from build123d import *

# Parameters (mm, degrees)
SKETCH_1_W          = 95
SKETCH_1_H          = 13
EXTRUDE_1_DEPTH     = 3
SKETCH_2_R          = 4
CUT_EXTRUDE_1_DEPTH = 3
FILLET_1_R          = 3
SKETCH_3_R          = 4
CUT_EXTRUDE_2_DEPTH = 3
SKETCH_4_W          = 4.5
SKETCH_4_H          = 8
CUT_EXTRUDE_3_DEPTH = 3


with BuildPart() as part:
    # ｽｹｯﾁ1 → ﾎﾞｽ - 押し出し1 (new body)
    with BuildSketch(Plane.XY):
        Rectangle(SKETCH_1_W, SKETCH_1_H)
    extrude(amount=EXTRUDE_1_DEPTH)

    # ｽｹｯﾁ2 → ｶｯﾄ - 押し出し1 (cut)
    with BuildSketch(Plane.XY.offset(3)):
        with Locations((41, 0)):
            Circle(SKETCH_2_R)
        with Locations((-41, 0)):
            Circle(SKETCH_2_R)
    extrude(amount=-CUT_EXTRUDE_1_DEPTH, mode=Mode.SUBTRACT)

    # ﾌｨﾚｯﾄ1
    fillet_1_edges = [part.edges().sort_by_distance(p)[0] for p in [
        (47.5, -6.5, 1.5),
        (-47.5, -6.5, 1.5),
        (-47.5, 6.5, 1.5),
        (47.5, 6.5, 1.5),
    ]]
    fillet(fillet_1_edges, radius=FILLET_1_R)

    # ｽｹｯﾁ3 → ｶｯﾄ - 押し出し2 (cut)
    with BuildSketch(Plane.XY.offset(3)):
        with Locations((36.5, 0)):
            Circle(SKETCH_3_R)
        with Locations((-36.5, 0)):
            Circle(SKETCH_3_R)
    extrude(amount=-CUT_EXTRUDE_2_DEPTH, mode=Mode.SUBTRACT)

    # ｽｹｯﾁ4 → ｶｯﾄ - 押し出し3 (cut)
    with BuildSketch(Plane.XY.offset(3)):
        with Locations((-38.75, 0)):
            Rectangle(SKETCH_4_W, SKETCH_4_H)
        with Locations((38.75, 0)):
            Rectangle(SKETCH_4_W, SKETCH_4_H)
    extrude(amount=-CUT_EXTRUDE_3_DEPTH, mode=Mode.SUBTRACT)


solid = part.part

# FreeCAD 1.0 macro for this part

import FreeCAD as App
import Part
import Sketcher
from FreeCAD import Vector
Q = App.Units.Quantity


def edges_at(feature, points):
    """Names of the edges that pass closest to the given points."""
    edges = feature.Shape.Edges
    near = lambda p: min(range(len(edges)), key=lambda i: edges[i].distToShape(Part.Vertex(*p))[0])
    return sorted({f"Edge{near(p) + 1}" for p in points})

doc = App.newDocument("Part")
body = doc.addObject("PartDesign::Body", "Body")

sketch1 = body.newObject("Sketcher::SketchObject", "Sketch")
sketch1.AttachmentSupport = (doc.getObject("XY_Plane"), [""])
sketch1.MapMode = "FlatFace"
sketch1.addGeometry([
    Part.LineSegment(Vector(-48, 6, 0), Vector(-48, -6, 0)),
    Part.LineSegment(Vector(-48, -6, 0), Vector(48, -6, 0)),
    Part.LineSegment(Vector(48, -6, 0), Vector(48, 6, 0)),
    Part.LineSegment(Vector(48, 6, 0), Vector(-48, 6, 0)),
], False)
sketch1.addConstraint([
    Sketcher.Constraint("Coincident", 0, 2, 1, 1),
    Sketcher.Constraint("Coincident", 1, 2, 2, 1),
    Sketcher.Constraint("Coincident", 2, 2, 3, 1),
    Sketcher.Constraint("Coincident", 3, 2, 0, 1),
    Sketcher.Constraint("Vertical", 0),
    Sketcher.Constraint("Horizontal", 1),
    Sketcher.Constraint("Vertical", 2),
    Sketcher.Constraint("Horizontal", 3),
    Sketcher.Constraint("Symmetric", 0, 2, 2, 2, -1, 1),
    Sketcher.Constraint("DistanceX", 1, 1, 1, 2, Q("95 mm")),
    Sketcher.Constraint("DistanceY", 0, 2, 0, 1, Q("13 mm")),
])
pad1 = body.newObject("PartDesign::Pad", "Pad")
pad1.Profile = sketch1
pad1.Length = 3

sketch2 = body.newObject("Sketcher::SketchObject", "Sketch001")
sketch2.AttachmentSupport = (doc.getObject("XY_Plane"), [""])
sketch2.MapMode = "FlatFace"
sketch2.AttachmentOffset = App.Placement(Vector(0, 0, 3), App.Rotation())
sketch2.addGeometry([
    Part.Circle(Vector(41, 0, 0), Vector(0, 0, 1), 4),
    Part.Circle(Vector(-41, 0, 0), Vector(0, 0, 1), 4),
], False)
sketch2.addConstraint([
    Sketcher.Constraint("Equal", 0, 1),
    Sketcher.Constraint("Symmetric", 0, 3, 1, 3, -1, 1),
    Sketcher.Constraint("PointOnObject", 0, 3, -1),
    Sketcher.Constraint("Diameter", 0, Q("8 mm")),
    Sketcher.Constraint("DistanceX", -1, 1, 0, 3, Q("41 mm")),
])
pocket1 = body.newObject("PartDesign::Pocket", "Pocket")
pocket1.Profile = sketch2
pocket1.Length = 3
doc.recompute()

fillet = body.newObject("PartDesign::Fillet", "Fillet")
fillet.Base = (pocket1, edges_at(pocket1, [
    (47.5, -6.5, 1.5),
    (-47.5, -6.5, 1.5),
    (-47.5, 6.5, 1.5),
    (47.5, 6.5, 1.5),
]))
fillet.Radius = 3

sketch3 = body.newObject("Sketcher::SketchObject", "Sketch002")
sketch3.AttachmentSupport = (doc.getObject("XY_Plane"), [""])
sketch3.MapMode = "FlatFace"
sketch3.AttachmentOffset = App.Placement(Vector(0, 0, 3), App.Rotation())
sketch3.addGeometry([
    Part.Circle(Vector(36.5, 0, 0), Vector(0, 0, 1), 4),
    Part.Circle(Vector(-36.5, 0, 0), Vector(0, 0, 1), 4),
], False)
sketch3.addConstraint([
    Sketcher.Constraint("Equal", 0, 1),
    Sketcher.Constraint("Symmetric", 0, 3, 1, 3, -1, 1),
    Sketcher.Constraint("PointOnObject", 0, 3, -1),
    Sketcher.Constraint("Diameter", 0, Q("8 mm")),
    Sketcher.Constraint("DistanceX", 1, 3, 0, 3, Q("73 mm")),
])
pocket2 = body.newObject("PartDesign::Pocket", "Pocket001")
pocket2.Profile = sketch3
pocket2.Length = 3

sketch4 = body.newObject("Sketcher::SketchObject", "Sketch003")
sketch4.AttachmentSupport = (doc.getObject("XY_Plane"), [""])
sketch4.MapMode = "FlatFace"
sketch4.AttachmentOffset = App.Placement(Vector(0, 0, 3), App.Rotation())
sketch4.addGeometry([
    Part.LineSegment(Vector(-41, 4, 0), Vector(-41, -4, 0)),
    Part.LineSegment(Vector(-41, -4, 0), Vector(-36.5, -4, 0)),
    Part.LineSegment(Vector(-36.5, -4, 0), Vector(-36.5, 4, 0)),
    Part.LineSegment(Vector(-36.5, 4, 0), Vector(-41, 4, 0)),
    Part.LineSegment(Vector(36.5, 4, 0), Vector(36.5, -4, 0)),
    Part.LineSegment(Vector(36.5, -4, 0), Vector(41, -4, 0)),
    Part.LineSegment(Vector(41, -4, 0), Vector(41, 4, 0)),
    Part.LineSegment(Vector(41, 4, 0), Vector(36.5, 4, 0)),
], False)
sketch4.addConstraint([
    Sketcher.Constraint("Coincident", 0, 2, 1, 1),
    Sketcher.Constraint("Coincident", 1, 2, 2, 1),
    Sketcher.Constraint("Coincident", 2, 2, 3, 1),
    Sketcher.Constraint("Coincident", 3, 2, 0, 1),
    Sketcher.Constraint("Coincident", 4, 2, 5, 1),
    Sketcher.Constraint("Coincident", 5, 2, 6, 1),
    Sketcher.Constraint("Coincident", 6, 2, 7, 1),
    Sketcher.Constraint("Coincident", 7, 2, 4, 1),
    Sketcher.Constraint("Vertical", 0),
    Sketcher.Constraint("Horizontal", 1),
    Sketcher.Constraint("Vertical", 2),
    Sketcher.Constraint("Horizontal", 3),
    Sketcher.Constraint("Vertical", 4),
    Sketcher.Constraint("Horizontal", 5),
    Sketcher.Constraint("Vertical", 6),
    Sketcher.Constraint("Horizontal", 7),
    Sketcher.Constraint("Symmetric", 2, 2, 4, 2, -1, 1),
    Sketcher.Constraint("Symmetric", 0, 2, 6, 2, -1, 1),
    Sketcher.Constraint("Horizontal", 1, 2, 4, 2),
    Sketcher.Constraint("DistanceY", 0, 2, 0, 1, Q("8 mm")),
    Sketcher.Constraint("DistanceX", 1, 1, 1, 2, Q("4.5 mm")),
    Sketcher.Constraint("DistanceX", 0, 2, -1, 1, Q("41 mm")),
])
pocket3 = body.newObject("PartDesign::Pocket", "Pocket002")
pocket3.Profile = sketch4
pocket3.Length = 3

doc.recompute()
